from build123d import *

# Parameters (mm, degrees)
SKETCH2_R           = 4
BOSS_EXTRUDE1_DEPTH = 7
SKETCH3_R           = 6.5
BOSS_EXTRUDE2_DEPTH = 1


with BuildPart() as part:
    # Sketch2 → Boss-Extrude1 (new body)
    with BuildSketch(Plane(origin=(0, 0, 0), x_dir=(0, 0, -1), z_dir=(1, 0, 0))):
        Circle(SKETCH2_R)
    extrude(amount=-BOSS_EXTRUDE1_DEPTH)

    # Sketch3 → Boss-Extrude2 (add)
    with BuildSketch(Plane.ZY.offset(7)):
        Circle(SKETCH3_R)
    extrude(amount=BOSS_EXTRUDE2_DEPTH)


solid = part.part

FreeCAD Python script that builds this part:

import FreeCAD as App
import Part
import Sketcher
from FreeCAD import Vector

doc = App.newDocument("Part")
params = doc.addObject("Spreadsheet::Sheet", "Params")
for row, (alias, value) in enumerate([
    ("sketch1_diameter", "8 mm"),
    ("pad1_length", "7 mm"),
    ("sketch2_diameter", "13 mm"),
    ("pad2_length", "1 mm"),
], start=1):
    params.set(f"A{row}", alias)
    params.set(f"B{row}", "=" + value)
    params.setAlias(f"B{row}", alias)

body = doc.addObject("PartDesign::Body", "Body")

# Sketch on YZ plane
sketch1 = doc.addObject("Sketcher::SketchObject", "Sketch")
body.addObject(sketch1)
sketch1.AttachmentSupport = (doc.YZ_Plane, [""])
sketch1.MapMode = "FlatFace"
sketch1.addGeometry(Part.Circle(Vector(0, 0, 0), Vector(0, 0, 1), 4), False)
sketch1.addConstraint(Sketcher.Constraint("Coincident", 0, 3, -1, 1))
sketch1.addConstraint(Sketcher.Constraint("Diameter", 0, 8.0))
sketch1.setExpression("Constraints[1]", "Params.sketch1_diameter")
pad1 = doc.addObject("PartDesign::Pad", "Pad")
body.addObject(pad1)
pad1.Profile = sketch1
pad1.setExpression("Length", "Params.pad1_length")
pad1.Reversed = True

# Sketch on YZ plane
sketch2 = doc.addObject("Sketcher::SketchObject", "Sketch001")
body.addObject(sketch2)
sketch2.AttachmentSupport = (doc.YZ_Plane, [""])
sketch2.MapMode = "FlatFace"
sketch2.AttachmentOffset = App.Placement(Vector(0, 0, -7), App.Rotation())
sketch2.addGeometry(Part.Circle(Vector(0, 0, 0), Vector(0, 0, 1), 6.5), False)
sketch2.addConstraint(Sketcher.Constraint("Coincident", 0, 3, -1, 1))
sketch2.addConstraint(Sketcher.Constraint("Diameter", 0, 13.0))
sketch2.setExpression("Constraints[1]", "Params.sketch2_diameter")
pad2 = doc.addObject("PartDesign::Pad", "Pad001")
body.addObject(pad2)
pad2.Profile = sketch2
pad2.setExpression("Length", "Params.pad2_length")
pad2.Reversed = True

doc.recompute()
